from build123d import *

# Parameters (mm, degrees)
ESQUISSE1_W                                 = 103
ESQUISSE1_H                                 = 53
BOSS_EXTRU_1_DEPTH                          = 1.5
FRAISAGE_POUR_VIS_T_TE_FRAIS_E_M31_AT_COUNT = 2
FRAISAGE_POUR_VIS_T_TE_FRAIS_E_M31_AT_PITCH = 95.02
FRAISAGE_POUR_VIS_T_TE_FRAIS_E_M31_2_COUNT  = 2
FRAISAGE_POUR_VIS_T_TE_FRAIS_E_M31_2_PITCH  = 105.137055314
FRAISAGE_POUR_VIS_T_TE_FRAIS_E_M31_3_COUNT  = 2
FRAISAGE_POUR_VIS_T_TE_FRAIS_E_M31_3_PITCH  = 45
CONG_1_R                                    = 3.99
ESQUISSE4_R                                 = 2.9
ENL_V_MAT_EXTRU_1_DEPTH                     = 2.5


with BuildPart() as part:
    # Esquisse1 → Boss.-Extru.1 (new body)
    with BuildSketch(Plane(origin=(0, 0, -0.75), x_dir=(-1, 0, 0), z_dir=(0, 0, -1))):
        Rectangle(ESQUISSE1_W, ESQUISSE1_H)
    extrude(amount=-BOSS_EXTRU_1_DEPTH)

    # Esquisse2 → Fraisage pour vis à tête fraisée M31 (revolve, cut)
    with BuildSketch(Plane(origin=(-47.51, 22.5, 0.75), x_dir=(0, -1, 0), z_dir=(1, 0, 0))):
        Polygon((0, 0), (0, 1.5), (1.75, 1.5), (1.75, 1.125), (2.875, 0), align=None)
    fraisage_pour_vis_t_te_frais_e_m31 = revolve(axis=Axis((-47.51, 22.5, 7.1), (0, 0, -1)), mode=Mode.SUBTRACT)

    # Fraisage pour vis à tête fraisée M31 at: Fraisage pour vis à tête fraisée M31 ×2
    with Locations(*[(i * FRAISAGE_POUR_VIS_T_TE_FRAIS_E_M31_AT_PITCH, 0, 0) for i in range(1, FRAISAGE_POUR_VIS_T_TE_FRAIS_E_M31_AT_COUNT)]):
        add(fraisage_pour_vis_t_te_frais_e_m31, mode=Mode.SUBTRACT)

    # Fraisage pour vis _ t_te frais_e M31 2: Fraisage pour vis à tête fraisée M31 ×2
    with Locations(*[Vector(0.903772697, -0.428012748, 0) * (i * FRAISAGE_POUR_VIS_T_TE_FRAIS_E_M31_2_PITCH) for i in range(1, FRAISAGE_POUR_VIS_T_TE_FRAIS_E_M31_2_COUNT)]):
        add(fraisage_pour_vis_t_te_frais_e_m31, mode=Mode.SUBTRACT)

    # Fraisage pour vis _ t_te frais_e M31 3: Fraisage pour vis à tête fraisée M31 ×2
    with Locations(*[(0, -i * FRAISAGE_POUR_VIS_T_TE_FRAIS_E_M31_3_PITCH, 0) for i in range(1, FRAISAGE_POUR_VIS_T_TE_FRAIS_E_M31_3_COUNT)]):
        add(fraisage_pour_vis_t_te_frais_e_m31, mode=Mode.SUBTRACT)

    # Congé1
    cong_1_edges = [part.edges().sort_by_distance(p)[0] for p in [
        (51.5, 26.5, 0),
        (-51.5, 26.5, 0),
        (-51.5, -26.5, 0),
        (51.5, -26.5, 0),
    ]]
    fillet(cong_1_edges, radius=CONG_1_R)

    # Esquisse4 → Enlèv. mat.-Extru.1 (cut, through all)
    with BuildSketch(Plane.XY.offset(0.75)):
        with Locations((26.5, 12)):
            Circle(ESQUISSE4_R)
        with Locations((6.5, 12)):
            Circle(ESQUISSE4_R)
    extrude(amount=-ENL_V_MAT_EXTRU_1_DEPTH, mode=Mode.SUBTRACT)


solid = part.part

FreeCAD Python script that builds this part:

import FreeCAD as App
import Part
import Sketcher
Q = App.Units.Quantity


def edges_at(feature, points):
    """Names of the edges that pass closest to the given points."""
    edges = feature.Shape.Edges
    near = lambda p: min(range(len(edges)), key=lambda i: edges[i].distToShape(Part.Vertex(*p))[0])
    return sorted({f"Edge{near(p) + 1}" for p in points})

doc = App.newDocument("Part")
body = doc.addObject("PartDesign::Body", "Body")

# Sketch on XY plane
sketch1 = body.newObject("Sketcher::SketchObject", "Sketch")
sketch1.AttachmentSupport = (doc.getObject("XY_Plane"), [""])
sketch1.MapMode = "FlatFace"
sketch1.AttachmentOffset = App.Placement(App.Vector(0, 0, -0.75), App.Rotation())
sketch1.addGeometry([
    Part.LineSegment(App.Vector(51.5, 26.5, 0), App.Vector(51.5, -26.5, 0)),
    Part.LineSegment(App.Vector(51.5, -26.5, 0), App.Vector(-51.5, -26.5, 0)),
    Part.LineSegment(App.Vector(-51.5, -26.5, 0), App.Vector(-51.5, 26.5, 0)),
    Part.LineSegment(App.Vector(-51.5, 26.5, 0), App.Vector(51.5, 26.5, 0)),
], False)
sketch1.addConstraint([
    Sketcher.Constraint("Coincident", 0, 2, 1, 1),
    Sketcher.Constraint("Coincident", 1, 2, 2, 1),
    Sketcher.Constraint("Coincident", 2, 2, 3, 1),
    Sketcher.Constraint("Coincident", 3, 2, 0, 1),
    Sketcher.Constraint("Vertical", 0),
    Sketcher.Constraint("Horizontal", 1),
    Sketcher.Constraint("Vertical", 2),
    Sketcher.Constraint("Horizontal", 3),
    Sketcher.Constraint("Symmetric", 0, 2, 2, 2, -1, 1),
    Sketcher.Constraint("DistanceX", 1, 2, 1, 1, 103.0),
    Sketcher.Constraint("DistanceY", 0, 2, 0, 1, 53.0),
])
pad1 = body.newObject("PartDesign::Pad", "Pad")
pad1.Profile = sketch1
pad1.Length = 1.5

# Sketch on YZ plane
sketch2 = body.newObject("Sketcher::SketchObject", "Sketch001")
sketch2.AttachmentSupport = (doc.getObject("YZ_Plane"), [""])
sketch2.MapMode = "FlatFace"
sketch2.AttachmentOffset = App.Placement(App.Vector(0, 0, -47.51), App.Rotation())
sketch2.addGeometry([
    Part.LineSegment(App.Vector(22.5, -0.75, 0), App.Vector(22.5, 0.75, 0)),  # 0
    Part.LineSegment(App.Vector(22.5, 0.75, 0), App.Vector(19.625, 0.75, 0)),  # 1
    Part.LineSegment(App.Vector(19.625, 0.75, 0), App.Vector(20.75, -0.375, 0)),  # 2
    Part.LineSegment(App.Vector(20.75, -0.375, 0), App.Vector(20.75, -0.75, 0)),  # 3
    Part.LineSegment(App.Vector(20.75, -0.75, 0), App.Vector(22.5, -0.75, 0)),  # 4
], False)
sketch2.addGeometry(Part.LineSegment(App.Vector(22.5, 0.75, 0), App.Vector(22.5, -0.75, 0)), True)  # axis
sketch2.addConstraint([
    Sketcher.Constraint("Coincident", 0, 2, 1, 1),
    Sketcher.Constraint("Coincident", 1, 2, 2, 1),
    Sketcher.Constraint("Coincident", 2, 2, 3, 1),
    Sketcher.Constraint("Coincident", 3, 2, 4, 1),
    Sketcher.Constraint("Coincident", 4, 2, 0, 1),
    Sketcher.Constraint("Vertical", 0),
    Sketcher.Constraint("Horizontal", 1),
    Sketcher.Constraint("Vertical", 3),
    Sketcher.Constraint("Horizontal", 4),
    Sketcher.Constraint("Vertical", 5),
    Sketcher.Constraint("Coincident", 5, 1, 0, 2),
    Sketcher.Constraint("Horizontal", 3, 2, 5, 2),
    Sketcher.Constraint("Angle", 2, Q("-45 deg")),
    Sketcher.Constraint("DistanceY", 0, 1, 0, 2, 1.5),
    Sketcher.Constraint("DistanceX", 4, 1, 4, 2, 1.75),
    Sketcher.Constraint("DistanceX", -1, 1, 0, 2, 22.5),
    Sketcher.Constraint("DistanceX", 1, 2, 1, 1, 2.875),
    Sketcher.Constraint("DistanceY", -1, 1, 0, 2, 0.75),
])
groove = body.newObject("PartDesign::Groove", "Groove")
groove.Profile = sketch2
groove.ReferenceAxis = (sketch2, ["Axis0"])
groove.Angle = 360
doc.recompute()

linearpattern = body.newObject("PartDesign::LinearPattern", "LinearPattern")
linearpattern.Originals = [groove]
linearpattern.Direction = (doc.getObject("X_Axis"), [""])
linearpattern.Mode = "offset"
linearpattern.Offset = 95.02
linearpattern.Occurrences = 2
body.Tip = linearpattern
doc.recompute()

datumline = body.newObject("PartDesign::Line", "DatumLine")
datumline.Placement = App.Placement(App.Vector(0, 0, 0), App.Rotation(App.Vector(0, 0, 1), App.Vector(0.903772697, -0.428012748, 0)))
linearpattern2 = body.newObject("PartDesign::LinearPattern", "LinearPattern001")
linearpattern2.Originals = [groove]
linearpattern2.Direction = (datumline, [""])
linearpattern2.Mode = "offset"
linearpattern2.Offset = 105.137055
linearpattern2.Occurrences = 2
body.Tip = linearpattern2
doc.recompute()

linearpattern3 = body.newObject("PartDesign::LinearPattern", "LinearPattern002")
linearpattern3.Originals = [groove]
linearpattern3.Direction = (doc.getObject("Y_Axis"), [""])
linearpattern3.Mode = "offset"
linearpattern3.Offset = 45
linearpattern3.Occurrences = 2
linearpattern3.Reversed = True
body.Tip = linearpattern3
doc.recompute()

fillet = body.newObject("PartDesign::Fillet", "Fillet")
fillet.Base = (linearpattern3, edges_at(linearpattern3, [
    (51.5, 26.5, 0),
    (-51.5, 26.5, 0),
    (-51.5, -26.5, 0),
    (51.5, -26.5, 0),
]))
fillet.Radius = 3.99

# Sketch on XY plane
sketch3 = body.newObject("Sketcher::SketchObject", "Sketch002")
sketch3.AttachmentSupport = (doc.getObject("XY_Plane"), [""])
sketch3.MapMode = "FlatFace"
sketch3.AttachmentOffset = App.Placement(App.Vector(0, 0, 0.75), App.Rotation())
sketch3.addGeometry([
    Part.Circle(App.Vector(26.5, 12, 0), App.Vector(0, 0, 1), 2.9),
    Part.Circle(App.Vector(6.5, 12, 0), App.Vector(0, 0, 1), 2.9),
], False)
sketch3.addConstraint([
    Sketcher.Constraint("Equal", 0, 1),
    Sketcher.Constraint("Horizontal", 0, 3, 1, 3),
    Sketcher.Constraint("Diameter", 0, 5.8),
    Sketcher.Constraint("DistanceY", -1, 1, 0, 3, 12.0),
    Sketcher.Constraint("DistanceX", 1, 3, 0, 3, 20.0),
    Sketcher.Constraint("DistanceX", -1, 1, 0, 3, 26.5),
])
pocket1 = body.newObject("PartDesign::Pocket", "Pocket")
pocket1.Profile = sketch3
pocket1.Type = "ThroughAll"

doc.recompute()
